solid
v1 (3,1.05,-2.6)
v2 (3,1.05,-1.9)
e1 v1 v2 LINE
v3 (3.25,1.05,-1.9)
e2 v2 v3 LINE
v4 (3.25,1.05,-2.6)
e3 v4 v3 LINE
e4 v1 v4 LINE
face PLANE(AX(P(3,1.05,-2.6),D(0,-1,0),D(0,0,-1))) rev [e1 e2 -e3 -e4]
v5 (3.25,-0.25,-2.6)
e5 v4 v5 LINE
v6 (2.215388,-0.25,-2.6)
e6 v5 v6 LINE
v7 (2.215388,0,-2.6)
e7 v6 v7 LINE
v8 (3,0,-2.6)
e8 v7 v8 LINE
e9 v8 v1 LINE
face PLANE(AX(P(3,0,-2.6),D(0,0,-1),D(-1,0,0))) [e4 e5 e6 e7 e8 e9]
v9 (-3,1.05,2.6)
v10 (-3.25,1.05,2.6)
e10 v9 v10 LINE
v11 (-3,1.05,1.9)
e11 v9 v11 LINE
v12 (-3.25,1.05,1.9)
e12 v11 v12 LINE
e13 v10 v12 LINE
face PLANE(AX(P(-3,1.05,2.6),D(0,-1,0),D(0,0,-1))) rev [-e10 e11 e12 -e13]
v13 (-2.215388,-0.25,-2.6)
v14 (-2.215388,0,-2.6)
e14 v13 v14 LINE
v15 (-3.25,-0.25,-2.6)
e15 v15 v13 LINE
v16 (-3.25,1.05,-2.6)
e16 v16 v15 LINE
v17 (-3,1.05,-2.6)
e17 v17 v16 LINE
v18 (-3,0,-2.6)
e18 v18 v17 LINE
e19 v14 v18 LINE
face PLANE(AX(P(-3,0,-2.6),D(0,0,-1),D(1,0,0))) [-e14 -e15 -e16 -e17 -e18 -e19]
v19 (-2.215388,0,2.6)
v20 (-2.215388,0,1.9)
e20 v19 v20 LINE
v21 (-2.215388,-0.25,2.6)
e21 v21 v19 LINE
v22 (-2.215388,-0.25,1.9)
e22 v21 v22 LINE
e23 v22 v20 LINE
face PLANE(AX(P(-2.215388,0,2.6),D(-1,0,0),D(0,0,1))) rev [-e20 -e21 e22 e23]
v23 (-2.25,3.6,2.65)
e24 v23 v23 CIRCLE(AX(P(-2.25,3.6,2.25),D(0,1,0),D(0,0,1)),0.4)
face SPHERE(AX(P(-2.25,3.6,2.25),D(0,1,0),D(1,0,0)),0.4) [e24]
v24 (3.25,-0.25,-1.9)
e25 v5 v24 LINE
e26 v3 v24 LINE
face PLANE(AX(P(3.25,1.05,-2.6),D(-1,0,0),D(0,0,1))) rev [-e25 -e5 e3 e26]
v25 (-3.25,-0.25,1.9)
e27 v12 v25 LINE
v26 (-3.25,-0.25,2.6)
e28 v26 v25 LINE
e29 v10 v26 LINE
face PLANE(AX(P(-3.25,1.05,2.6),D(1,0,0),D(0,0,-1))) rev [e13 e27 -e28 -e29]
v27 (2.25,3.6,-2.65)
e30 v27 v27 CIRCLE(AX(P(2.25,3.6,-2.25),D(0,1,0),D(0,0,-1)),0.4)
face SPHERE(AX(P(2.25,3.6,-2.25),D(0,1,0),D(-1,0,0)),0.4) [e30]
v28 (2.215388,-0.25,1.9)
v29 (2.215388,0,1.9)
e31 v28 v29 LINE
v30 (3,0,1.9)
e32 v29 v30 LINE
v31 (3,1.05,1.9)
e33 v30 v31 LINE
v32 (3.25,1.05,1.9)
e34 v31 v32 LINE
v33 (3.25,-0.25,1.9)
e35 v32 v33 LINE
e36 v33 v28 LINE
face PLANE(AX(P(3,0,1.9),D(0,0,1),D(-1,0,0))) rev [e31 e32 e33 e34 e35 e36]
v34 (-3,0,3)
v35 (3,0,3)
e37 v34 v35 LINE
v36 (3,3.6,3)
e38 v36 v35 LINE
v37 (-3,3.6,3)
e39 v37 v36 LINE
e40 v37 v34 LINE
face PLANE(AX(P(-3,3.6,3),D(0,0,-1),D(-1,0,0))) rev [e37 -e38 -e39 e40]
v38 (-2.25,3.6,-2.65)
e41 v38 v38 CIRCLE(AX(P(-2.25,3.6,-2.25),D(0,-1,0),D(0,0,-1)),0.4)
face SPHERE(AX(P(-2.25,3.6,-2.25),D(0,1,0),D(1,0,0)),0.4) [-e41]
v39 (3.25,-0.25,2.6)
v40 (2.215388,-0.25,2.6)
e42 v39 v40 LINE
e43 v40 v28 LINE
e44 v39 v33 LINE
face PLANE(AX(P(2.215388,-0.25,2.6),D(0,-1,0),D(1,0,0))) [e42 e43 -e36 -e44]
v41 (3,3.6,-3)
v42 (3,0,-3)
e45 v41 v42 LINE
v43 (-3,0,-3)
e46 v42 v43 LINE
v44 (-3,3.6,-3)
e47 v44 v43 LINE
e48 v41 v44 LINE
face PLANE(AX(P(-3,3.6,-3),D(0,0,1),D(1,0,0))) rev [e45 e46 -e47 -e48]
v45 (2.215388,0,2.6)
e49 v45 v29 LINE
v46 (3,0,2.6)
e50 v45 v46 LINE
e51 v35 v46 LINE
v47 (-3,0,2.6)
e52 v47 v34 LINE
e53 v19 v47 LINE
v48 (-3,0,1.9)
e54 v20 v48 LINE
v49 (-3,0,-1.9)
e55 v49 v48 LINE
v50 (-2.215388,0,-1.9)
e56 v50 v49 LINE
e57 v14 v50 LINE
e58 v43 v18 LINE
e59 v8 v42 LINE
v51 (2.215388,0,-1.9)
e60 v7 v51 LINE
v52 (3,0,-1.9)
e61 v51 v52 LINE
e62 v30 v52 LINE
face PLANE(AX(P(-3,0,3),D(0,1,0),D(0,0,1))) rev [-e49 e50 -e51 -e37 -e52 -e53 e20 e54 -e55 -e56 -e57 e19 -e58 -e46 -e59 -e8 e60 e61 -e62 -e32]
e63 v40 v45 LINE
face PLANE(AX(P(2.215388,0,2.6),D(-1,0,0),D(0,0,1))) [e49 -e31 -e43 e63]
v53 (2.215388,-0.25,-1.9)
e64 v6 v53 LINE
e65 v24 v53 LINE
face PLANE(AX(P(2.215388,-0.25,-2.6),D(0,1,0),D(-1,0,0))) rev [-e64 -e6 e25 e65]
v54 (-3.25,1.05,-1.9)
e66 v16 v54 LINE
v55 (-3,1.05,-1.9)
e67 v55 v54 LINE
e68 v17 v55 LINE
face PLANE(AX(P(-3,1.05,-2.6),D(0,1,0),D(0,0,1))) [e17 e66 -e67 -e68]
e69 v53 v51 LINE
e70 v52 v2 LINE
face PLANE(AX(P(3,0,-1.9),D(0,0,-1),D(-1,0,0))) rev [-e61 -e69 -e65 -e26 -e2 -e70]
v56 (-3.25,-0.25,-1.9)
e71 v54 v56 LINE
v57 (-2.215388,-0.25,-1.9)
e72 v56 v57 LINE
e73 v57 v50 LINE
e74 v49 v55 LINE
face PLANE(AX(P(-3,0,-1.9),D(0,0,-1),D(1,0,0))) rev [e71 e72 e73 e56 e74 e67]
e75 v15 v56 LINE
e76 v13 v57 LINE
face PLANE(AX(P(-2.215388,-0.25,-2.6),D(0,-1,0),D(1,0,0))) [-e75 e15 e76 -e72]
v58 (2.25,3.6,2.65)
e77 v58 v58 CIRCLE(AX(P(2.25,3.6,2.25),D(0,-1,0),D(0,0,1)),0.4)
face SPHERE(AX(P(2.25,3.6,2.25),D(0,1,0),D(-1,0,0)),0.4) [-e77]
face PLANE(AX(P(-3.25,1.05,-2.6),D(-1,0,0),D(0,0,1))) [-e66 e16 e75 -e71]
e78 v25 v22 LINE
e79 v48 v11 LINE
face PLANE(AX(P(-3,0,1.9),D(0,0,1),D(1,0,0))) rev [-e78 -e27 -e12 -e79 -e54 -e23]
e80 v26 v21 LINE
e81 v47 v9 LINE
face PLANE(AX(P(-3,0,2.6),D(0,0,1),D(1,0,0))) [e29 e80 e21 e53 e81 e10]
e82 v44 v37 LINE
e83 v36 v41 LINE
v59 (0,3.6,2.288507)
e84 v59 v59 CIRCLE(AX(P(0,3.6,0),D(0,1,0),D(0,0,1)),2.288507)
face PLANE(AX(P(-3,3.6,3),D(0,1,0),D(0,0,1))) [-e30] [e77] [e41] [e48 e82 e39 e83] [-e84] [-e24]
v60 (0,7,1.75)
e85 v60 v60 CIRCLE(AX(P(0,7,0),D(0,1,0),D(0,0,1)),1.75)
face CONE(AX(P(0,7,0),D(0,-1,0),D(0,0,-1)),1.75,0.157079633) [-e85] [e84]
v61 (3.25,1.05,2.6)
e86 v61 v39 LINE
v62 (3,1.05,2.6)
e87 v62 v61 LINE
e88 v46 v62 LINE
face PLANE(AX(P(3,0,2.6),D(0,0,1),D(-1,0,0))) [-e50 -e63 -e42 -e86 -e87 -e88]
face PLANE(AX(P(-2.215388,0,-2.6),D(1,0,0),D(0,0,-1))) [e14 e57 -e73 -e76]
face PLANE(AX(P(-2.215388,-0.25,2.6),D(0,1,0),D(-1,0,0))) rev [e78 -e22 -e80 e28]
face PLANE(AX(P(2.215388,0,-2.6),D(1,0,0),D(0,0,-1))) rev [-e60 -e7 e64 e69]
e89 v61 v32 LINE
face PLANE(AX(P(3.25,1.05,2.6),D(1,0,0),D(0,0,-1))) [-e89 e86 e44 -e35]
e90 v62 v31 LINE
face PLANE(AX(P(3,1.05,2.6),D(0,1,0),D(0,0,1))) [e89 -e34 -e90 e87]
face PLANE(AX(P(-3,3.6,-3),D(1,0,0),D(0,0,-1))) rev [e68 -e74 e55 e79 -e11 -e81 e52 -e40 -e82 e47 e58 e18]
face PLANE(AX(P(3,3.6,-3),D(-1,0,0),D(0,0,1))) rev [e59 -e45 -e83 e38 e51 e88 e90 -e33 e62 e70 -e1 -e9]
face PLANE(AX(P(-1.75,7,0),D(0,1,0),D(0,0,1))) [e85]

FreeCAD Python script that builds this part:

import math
import FreeCAD as App
import Part
import Sketcher
Q = App.Units.Quantity

doc = App.newDocument("Part")
body = doc.addObject("PartDesign::Body", "Body")

# Sketch on XZ plane
sketch1 = body.newObject("Sketcher::SketchObject", "Sketch")
sketch1.AttachmentSupport = (doc.getObject("XZ_Plane"), [""])
sketch1.MapMode = "FlatFace"
sketch1.addGeometry([
    Part.LineSegment(App.Vector(-3, -3, 0), App.Vector(-3, 3, 0)),
    Part.LineSegment(App.Vector(-3, 3, 0), App.Vector(3, 3, 0)),
    Part.LineSegment(App.Vector(3, 3, 0), App.Vector(3, -3, 0)),
    Part.LineSegment(App.Vector(3, -3, 0), App.Vector(-3, -3, 0)),
], False)
sketch1.addConstraint([
    Sketcher.Constraint("Coincident", 0, 2, 1, 1),
    Sketcher.Constraint("Coincident", 1, 2, 2, 1),
    Sketcher.Constraint("Coincident", 2, 2, 3, 1),
    Sketcher.Constraint("Coincident", 3, 2, 0, 1),
    Sketcher.Constraint("Vertical", 0),
    Sketcher.Constraint("Horizontal", 1),
    Sketcher.Constraint("Vertical", 2),
    Sketcher.Constraint("Horizontal", 3),
    Sketcher.Constraint("Symmetric", 0, 2, 2, 2, -1, 1),
    Sketcher.Constraint("Equal", 3, 0),
    Sketcher.Constraint("DistanceX", 1, 1, 1, 2, 6.0),
])
pad1 = body.newObject("PartDesign::Pad", "Pad")
pad1.Profile = sketch1
pad1.Length = 3.6
pad1.Reversed = True

# Sketch on XY plane
sketch2 = body.newObject("Sketcher::SketchObject", "Sketch001")
sketch2.AttachmentSupport = (doc.getObject("XY_Plane"), [""])
sketch2.MapMode = "FlatFace"
sketch2.AttachmentOffset = App.Placement(App.Vector(0, 0, 2.25), App.Rotation())
sketch2.addGeometry([
    Part.LineSegment(App.Vector(-2.25, 3.6, 0), App.Vector(-1.85, 3.6, 0)),
    Part.ArcOfCircle(Part.Circle(App.Vector(-2.25, 3.6, 0), App.Vector(0, 0, 1), 0.4), math.radians(0), math.radians(90)),
    Part.LineSegment(App.Vector(-2.25, 4, 0), App.Vector(-2.25, 3.6, 0)),
], False)
sketch2.addGeometry(Part.LineSegment(App.Vector(-2.25, 4, 0), App.Vector(-2.25, 3.6, 0)), True)  # axis
sketch2.addConstraint([
    Sketcher.Constraint("Coincident", 0, 2, 1, 1),
    Sketcher.Constraint("Coincident", 1, 2, 2, 1),
    Sketcher.Constraint("Coincident", 2, 2, 0, 1),
    Sketcher.Constraint("Horizontal", 0),
    Sketcher.Constraint("Vertical", 2),
    Sketcher.Constraint("Vertical", 3),
    Sketcher.Constraint("Coincident", 2, 2, 1, 3),
    Sketcher.Constraint("Coincident", 3, 1, 1, 2),
    Sketcher.Constraint("Horizontal", 0, 2, 3, 2),
    Sketcher.Constraint("Radius", 1, 0.4),
    Sketcher.Constraint("DistanceY", -1, 1, 1, 2, 4.0),
    Sketcher.Constraint("DistanceX", 1, 3, -1, 1, 2.25),
])
revolution = body.newObject("PartDesign::Revolution", "Revolution")
revolution.Profile = sketch2
revolution.ReferenceAxis = (sketch2, ["Axis0"])
revolution.Angle = 360
doc.recompute()

mirrored = body.newObject("PartDesign::Mirrored", "Mirrored")
mirrored.Originals = [revolution]
mirrored.MirrorPlane = (doc.getObject("XY_Plane"), [""])
body.Tip = mirrored
doc.recompute()

mirrored2 = body.newObject("PartDesign::Mirrored", "Mirrored001")
mirrored2.Originals = [revolution]
mirrored2.MirrorPlane = (doc.getObject("YZ_Plane"), [""])
body.Tip = mirrored2

# Sketch on XY plane
sketch3 = body.newObject("Sketcher::SketchObject", "Sketch002")
sketch3.AttachmentSupport = (doc.getObject("XY_Plane"), [""])
sketch3.MapMode = "FlatFace"
sketch3.AttachmentOffset = App.Placement(App.Vector(0, 0, -2.25), App.Rotation())
sketch3.addGeometry([
    Part.LineSegment(App.Vector(2.25, 3.6, 0), App.Vector(1.85, 3.6, 0)),
    Part.ArcOfCircle(Part.Circle(App.Vector(2.25, 3.6, 0), App.Vector(0, 0, 1), 0.4), math.radians(90), math.radians(180)),
    Part.LineSegment(App.Vector(2.25, 4, 0), App.Vector(2.25, 3.6, 0)),
], False)
sketch3.addGeometry(Part.LineSegment(App.Vector(2.25, 4, 0), App.Vector(2.25, 3.6, 0)), True)  # axis
sketch3.addConstraint([
    Sketcher.Constraint("Coincident", 0, 2, 1, 2),
    Sketcher.Constraint("Coincident", 1, 1, 2, 1),
    Sketcher.Constraint("Coincident", 2, 2, 0, 1),
    Sketcher.Constraint("Horizontal", 0),
    Sketcher.Constraint("Vertical", 2),
    Sketcher.Constraint("Vertical", 3),
    Sketcher.Constraint("Coincident", 2, 2, 1, 3),
    Sketcher.Constraint("Coincident", 3, 1, 1, 1),
    Sketcher.Constraint("Horizontal", 0, 2, 3, 2),
    Sketcher.Constraint("Radius", 1, 0.4),
    Sketcher.Constraint("DistanceY", -1, 1, 1, 1, 4.0),
    Sketcher.Constraint("DistanceX", -1, 1, 1, 3, 2.25),
])
revolution2 = body.newObject("PartDesign::Revolution", "Revolution001")
revolution2.Profile = sketch3
revolution2.ReferenceAxis = (sketch3, ["Axis0"])
revolution2.Angle = 360

# Sketch on XY plane
sketch4 = body.newObject("Sketcher::SketchObject", "Sketch003")
sketch4.AttachmentSupport = (doc.getObject("XY_Plane"), [""])
sketch4.MapMode = "FlatFace"
sketch4.addGeometry([
    Part.LineSegment(App.Vector(-1.8, 7, 0), App.Vector(-2.3, 3.6, 0)),
    Part.LineSegment(App.Vector(-2.3, 3.6, 0), App.Vector(0, 3.6, 0)),
    Part.LineSegment(App.Vector(0, 3.6, 0), App.Vector(0, 7, 0)),
    Part.LineSegment(App.Vector(0, 7, 0), App.Vector(-1.8, 7, 0)),
], False)
sketch4.addConstraint([
    Sketcher.Constraint("Coincident", 0, 2, 1, 1),
    Sketcher.Constraint("Coincident", 1, 2, 2, 1),
    Sketcher.Constraint("Coincident", 2, 2, 3, 1),
    Sketcher.Constraint("Coincident", 3, 2, 0, 1),
    Sketcher.Constraint("Horizontal", 1),
    Sketcher.Constraint("Vertical", 2),
    Sketcher.Constraint("Horizontal", 3),
    Sketcher.Constraint("PointOnObject", 1, 2, -2),
    Sketcher.Constraint("Angle", 0, Q("-99 deg")),
    Sketcher.Constraint("DistanceY", 2, 1, 2, 2, 3.4),
    Sketcher.Constraint("DistanceY", -1, 1, 2, 2, 7.0),
    Sketcher.Constraint("DistanceX", 3, 2, 3, 1, 1.75),
])
revolution3 = body.newObject("PartDesign::Revolution", "Revolution002")
revolution3.Profile = sketch4
revolution3.ReferenceAxis = (sketch4, ["V_Axis"])
revolution3.Angle = 360

# Sketch on XY plane
sketch5 = body.newObject("Sketcher::SketchObject", "Sketch004")
sketch5.AttachmentSupport = (doc.getObject("XY_Plane"), [""])
sketch5.MapMode = "FlatFace"
sketch5.AttachmentOffset = App.Placement(App.Vector(0, 0, 2.25), App.Rotation())
sketch5.addGeometry([
    Part.LineSegment(App.Vector(-3, 1.05, 0), App.Vector(-3.25, 1.05, 0)),  # 0
    Part.LineSegment(App.Vector(-3.25, 1.05, 0), App.Vector(-3.25, -0.25, 0)),  # 1
    Part.LineSegment(App.Vector(-3.25, -0.25, 0), App.Vector(-2.22, -0.25, 0)),  # 2
    Part.LineSegment(App.Vector(-2.22, -0.25, 0), App.Vector(-2.22, 0, 0)),  # 3
    Part.LineSegment(App.Vector(-2.22, 0, 0), App.Vector(-3, 0, 0)),  # 4
    Part.LineSegment(App.Vector(-3, 0, 0), App.Vector(-3, 1.05, 0)),  # 5
], False)
sketch5.addConstraint([
    Sketcher.Constraint("Coincident", 0, 2, 1, 1),
    Sketcher.Constraint("Coincident", 1, 2, 2, 1),
    Sketcher.Constraint("Coincident", 2, 2, 3, 1),
    Sketcher.Constraint("Coincident", 3, 2, 4, 1),
    Sketcher.Constraint("Coincident", 4, 2, 5, 1),
    Sketcher.Constraint("Coincident", 5, 2, 0, 1),
    Sketcher.Constraint("Horizontal", 0),
    Sketcher.Constraint("Vertical", 1),
    Sketcher.Constraint("Horizontal", 2),
    Sketcher.Constraint("Vertical", 3),
    Sketcher.Constraint("Horizontal", 4),
    Sketcher.Constraint("Vertical", 5),
    Sketcher.Constraint("PointOnObject", 3, 2, -1),
    Sketcher.Constraint("Equal", 0, 3),
    Sketcher.Constraint("DistanceY", 1, 2, 1, 1, 1.3),
    Sketcher.Constraint("DistanceX", 4, 2, -1, 1, 3.0),
    Sketcher.Constraint("DistanceX", 0, 2, 0, 1, 0.25),
    Sketcher.Constraint("DistanceX", 2, 1, 2, 2, 1.034612),
])
pad2 = body.newObject("PartDesign::Pad", "Pad001")
pad2.Profile = sketch5
pad2.Length = 0.7
pad2.Midplane = True
doc.recompute()

mirrored3 = body.newObject("PartDesign::Mirrored", "Mirrored002")
mirrored3.Originals = [pad2]
mirrored3.MirrorPlane = (doc.getObject("XY_Plane"), [""])
body.Tip = mirrored3
doc.recompute()

mirrored4 = body.newObject("PartDesign::Mirrored", "Mirrored003")
mirrored4.Originals = [pad2]
mirrored4.MirrorPlane = (doc.getObject("YZ_Plane"), [""])
body.Tip = mirrored4

# Sketch on XY plane
sketch6 = body.newObject("Sketcher::SketchObject", "Sketch005")
sketch6.AttachmentSupport = (doc.getObject("XY_Plane"), [""])
sketch6.MapMode = "FlatFace"
sketch6.AttachmentOffset = App.Placement(App.Vector(0, 0, -2.25), App.Rotation())
sketch6.addGeometry([
    Part.LineSegment(App.Vector(3, 1.05, 0), App.Vector(3.25, 1.05, 0)),  # 0
    Part.LineSegment(App.Vector(3.25, 1.05, 0), App.Vector(3.25, -0.25, 0)),  # 1
    Part.LineSegment(App.Vector(3.25, -0.25, 0), App.Vector(2.22, -0.25, 0)),  # 2
    Part.LineSegment(App.Vector(2.22, -0.25, 0), App.Vector(2.22, 0, 0)),  # 3
    Part.LineSegment(App.Vector(2.22, 0, 0), App.Vector(3, 0, 0)),  # 4
    Part.LineSegment(App.Vector(3, 0, 0), App.Vector(3, 1.05, 0)),  # 5
], False)
sketch6.addConstraint([
    Sketcher.Constraint("Coincident", 0, 2, 1, 1),
    Sketcher.Constraint("Coincident", 1, 2, 2, 1),
    Sketcher.Constraint("Coincident", 2, 2, 3, 1),
    Sketcher.Constraint("Coincident", 3, 2, 4, 1),
    Sketcher.Constraint("Coincident", 4, 2, 5, 1),
    Sketcher.Constraint("Coincident", 5, 2, 0, 1),
    Sketcher.Constraint("Horizontal", 0),
    Sketcher.Constraint("Vertical", 1),
    Sketcher.Constraint("Horizontal", 2),
    Sketcher.Constraint("Vertical", 3),
    Sketcher.Constraint("Horizontal", 4),
    Sketcher.Constraint("Vertical", 5),
    Sketcher.Constraint("PointOnObject", 3, 2, -1),
    Sketcher.Constraint("Equal", 0, 3),
    Sketcher.Constraint("DistanceY", 1, 2, 1, 1, 1.3),
    Sketcher.Constraint("DistanceX", -1, 1, 4, 2, 3.0),
    Sketcher.Constraint("DistanceX", 0, 1, 0, 2, 0.25),
    Sketcher.Constraint("DistanceX", 2, 2, 2, 1, 1.034612),
])
pad3 = body.newObject("PartDesign::Pad", "Pad002")
pad3.Profile = sketch6
pad3.Length = 0.7
pad3.Midplane = True

doc.recompute()
